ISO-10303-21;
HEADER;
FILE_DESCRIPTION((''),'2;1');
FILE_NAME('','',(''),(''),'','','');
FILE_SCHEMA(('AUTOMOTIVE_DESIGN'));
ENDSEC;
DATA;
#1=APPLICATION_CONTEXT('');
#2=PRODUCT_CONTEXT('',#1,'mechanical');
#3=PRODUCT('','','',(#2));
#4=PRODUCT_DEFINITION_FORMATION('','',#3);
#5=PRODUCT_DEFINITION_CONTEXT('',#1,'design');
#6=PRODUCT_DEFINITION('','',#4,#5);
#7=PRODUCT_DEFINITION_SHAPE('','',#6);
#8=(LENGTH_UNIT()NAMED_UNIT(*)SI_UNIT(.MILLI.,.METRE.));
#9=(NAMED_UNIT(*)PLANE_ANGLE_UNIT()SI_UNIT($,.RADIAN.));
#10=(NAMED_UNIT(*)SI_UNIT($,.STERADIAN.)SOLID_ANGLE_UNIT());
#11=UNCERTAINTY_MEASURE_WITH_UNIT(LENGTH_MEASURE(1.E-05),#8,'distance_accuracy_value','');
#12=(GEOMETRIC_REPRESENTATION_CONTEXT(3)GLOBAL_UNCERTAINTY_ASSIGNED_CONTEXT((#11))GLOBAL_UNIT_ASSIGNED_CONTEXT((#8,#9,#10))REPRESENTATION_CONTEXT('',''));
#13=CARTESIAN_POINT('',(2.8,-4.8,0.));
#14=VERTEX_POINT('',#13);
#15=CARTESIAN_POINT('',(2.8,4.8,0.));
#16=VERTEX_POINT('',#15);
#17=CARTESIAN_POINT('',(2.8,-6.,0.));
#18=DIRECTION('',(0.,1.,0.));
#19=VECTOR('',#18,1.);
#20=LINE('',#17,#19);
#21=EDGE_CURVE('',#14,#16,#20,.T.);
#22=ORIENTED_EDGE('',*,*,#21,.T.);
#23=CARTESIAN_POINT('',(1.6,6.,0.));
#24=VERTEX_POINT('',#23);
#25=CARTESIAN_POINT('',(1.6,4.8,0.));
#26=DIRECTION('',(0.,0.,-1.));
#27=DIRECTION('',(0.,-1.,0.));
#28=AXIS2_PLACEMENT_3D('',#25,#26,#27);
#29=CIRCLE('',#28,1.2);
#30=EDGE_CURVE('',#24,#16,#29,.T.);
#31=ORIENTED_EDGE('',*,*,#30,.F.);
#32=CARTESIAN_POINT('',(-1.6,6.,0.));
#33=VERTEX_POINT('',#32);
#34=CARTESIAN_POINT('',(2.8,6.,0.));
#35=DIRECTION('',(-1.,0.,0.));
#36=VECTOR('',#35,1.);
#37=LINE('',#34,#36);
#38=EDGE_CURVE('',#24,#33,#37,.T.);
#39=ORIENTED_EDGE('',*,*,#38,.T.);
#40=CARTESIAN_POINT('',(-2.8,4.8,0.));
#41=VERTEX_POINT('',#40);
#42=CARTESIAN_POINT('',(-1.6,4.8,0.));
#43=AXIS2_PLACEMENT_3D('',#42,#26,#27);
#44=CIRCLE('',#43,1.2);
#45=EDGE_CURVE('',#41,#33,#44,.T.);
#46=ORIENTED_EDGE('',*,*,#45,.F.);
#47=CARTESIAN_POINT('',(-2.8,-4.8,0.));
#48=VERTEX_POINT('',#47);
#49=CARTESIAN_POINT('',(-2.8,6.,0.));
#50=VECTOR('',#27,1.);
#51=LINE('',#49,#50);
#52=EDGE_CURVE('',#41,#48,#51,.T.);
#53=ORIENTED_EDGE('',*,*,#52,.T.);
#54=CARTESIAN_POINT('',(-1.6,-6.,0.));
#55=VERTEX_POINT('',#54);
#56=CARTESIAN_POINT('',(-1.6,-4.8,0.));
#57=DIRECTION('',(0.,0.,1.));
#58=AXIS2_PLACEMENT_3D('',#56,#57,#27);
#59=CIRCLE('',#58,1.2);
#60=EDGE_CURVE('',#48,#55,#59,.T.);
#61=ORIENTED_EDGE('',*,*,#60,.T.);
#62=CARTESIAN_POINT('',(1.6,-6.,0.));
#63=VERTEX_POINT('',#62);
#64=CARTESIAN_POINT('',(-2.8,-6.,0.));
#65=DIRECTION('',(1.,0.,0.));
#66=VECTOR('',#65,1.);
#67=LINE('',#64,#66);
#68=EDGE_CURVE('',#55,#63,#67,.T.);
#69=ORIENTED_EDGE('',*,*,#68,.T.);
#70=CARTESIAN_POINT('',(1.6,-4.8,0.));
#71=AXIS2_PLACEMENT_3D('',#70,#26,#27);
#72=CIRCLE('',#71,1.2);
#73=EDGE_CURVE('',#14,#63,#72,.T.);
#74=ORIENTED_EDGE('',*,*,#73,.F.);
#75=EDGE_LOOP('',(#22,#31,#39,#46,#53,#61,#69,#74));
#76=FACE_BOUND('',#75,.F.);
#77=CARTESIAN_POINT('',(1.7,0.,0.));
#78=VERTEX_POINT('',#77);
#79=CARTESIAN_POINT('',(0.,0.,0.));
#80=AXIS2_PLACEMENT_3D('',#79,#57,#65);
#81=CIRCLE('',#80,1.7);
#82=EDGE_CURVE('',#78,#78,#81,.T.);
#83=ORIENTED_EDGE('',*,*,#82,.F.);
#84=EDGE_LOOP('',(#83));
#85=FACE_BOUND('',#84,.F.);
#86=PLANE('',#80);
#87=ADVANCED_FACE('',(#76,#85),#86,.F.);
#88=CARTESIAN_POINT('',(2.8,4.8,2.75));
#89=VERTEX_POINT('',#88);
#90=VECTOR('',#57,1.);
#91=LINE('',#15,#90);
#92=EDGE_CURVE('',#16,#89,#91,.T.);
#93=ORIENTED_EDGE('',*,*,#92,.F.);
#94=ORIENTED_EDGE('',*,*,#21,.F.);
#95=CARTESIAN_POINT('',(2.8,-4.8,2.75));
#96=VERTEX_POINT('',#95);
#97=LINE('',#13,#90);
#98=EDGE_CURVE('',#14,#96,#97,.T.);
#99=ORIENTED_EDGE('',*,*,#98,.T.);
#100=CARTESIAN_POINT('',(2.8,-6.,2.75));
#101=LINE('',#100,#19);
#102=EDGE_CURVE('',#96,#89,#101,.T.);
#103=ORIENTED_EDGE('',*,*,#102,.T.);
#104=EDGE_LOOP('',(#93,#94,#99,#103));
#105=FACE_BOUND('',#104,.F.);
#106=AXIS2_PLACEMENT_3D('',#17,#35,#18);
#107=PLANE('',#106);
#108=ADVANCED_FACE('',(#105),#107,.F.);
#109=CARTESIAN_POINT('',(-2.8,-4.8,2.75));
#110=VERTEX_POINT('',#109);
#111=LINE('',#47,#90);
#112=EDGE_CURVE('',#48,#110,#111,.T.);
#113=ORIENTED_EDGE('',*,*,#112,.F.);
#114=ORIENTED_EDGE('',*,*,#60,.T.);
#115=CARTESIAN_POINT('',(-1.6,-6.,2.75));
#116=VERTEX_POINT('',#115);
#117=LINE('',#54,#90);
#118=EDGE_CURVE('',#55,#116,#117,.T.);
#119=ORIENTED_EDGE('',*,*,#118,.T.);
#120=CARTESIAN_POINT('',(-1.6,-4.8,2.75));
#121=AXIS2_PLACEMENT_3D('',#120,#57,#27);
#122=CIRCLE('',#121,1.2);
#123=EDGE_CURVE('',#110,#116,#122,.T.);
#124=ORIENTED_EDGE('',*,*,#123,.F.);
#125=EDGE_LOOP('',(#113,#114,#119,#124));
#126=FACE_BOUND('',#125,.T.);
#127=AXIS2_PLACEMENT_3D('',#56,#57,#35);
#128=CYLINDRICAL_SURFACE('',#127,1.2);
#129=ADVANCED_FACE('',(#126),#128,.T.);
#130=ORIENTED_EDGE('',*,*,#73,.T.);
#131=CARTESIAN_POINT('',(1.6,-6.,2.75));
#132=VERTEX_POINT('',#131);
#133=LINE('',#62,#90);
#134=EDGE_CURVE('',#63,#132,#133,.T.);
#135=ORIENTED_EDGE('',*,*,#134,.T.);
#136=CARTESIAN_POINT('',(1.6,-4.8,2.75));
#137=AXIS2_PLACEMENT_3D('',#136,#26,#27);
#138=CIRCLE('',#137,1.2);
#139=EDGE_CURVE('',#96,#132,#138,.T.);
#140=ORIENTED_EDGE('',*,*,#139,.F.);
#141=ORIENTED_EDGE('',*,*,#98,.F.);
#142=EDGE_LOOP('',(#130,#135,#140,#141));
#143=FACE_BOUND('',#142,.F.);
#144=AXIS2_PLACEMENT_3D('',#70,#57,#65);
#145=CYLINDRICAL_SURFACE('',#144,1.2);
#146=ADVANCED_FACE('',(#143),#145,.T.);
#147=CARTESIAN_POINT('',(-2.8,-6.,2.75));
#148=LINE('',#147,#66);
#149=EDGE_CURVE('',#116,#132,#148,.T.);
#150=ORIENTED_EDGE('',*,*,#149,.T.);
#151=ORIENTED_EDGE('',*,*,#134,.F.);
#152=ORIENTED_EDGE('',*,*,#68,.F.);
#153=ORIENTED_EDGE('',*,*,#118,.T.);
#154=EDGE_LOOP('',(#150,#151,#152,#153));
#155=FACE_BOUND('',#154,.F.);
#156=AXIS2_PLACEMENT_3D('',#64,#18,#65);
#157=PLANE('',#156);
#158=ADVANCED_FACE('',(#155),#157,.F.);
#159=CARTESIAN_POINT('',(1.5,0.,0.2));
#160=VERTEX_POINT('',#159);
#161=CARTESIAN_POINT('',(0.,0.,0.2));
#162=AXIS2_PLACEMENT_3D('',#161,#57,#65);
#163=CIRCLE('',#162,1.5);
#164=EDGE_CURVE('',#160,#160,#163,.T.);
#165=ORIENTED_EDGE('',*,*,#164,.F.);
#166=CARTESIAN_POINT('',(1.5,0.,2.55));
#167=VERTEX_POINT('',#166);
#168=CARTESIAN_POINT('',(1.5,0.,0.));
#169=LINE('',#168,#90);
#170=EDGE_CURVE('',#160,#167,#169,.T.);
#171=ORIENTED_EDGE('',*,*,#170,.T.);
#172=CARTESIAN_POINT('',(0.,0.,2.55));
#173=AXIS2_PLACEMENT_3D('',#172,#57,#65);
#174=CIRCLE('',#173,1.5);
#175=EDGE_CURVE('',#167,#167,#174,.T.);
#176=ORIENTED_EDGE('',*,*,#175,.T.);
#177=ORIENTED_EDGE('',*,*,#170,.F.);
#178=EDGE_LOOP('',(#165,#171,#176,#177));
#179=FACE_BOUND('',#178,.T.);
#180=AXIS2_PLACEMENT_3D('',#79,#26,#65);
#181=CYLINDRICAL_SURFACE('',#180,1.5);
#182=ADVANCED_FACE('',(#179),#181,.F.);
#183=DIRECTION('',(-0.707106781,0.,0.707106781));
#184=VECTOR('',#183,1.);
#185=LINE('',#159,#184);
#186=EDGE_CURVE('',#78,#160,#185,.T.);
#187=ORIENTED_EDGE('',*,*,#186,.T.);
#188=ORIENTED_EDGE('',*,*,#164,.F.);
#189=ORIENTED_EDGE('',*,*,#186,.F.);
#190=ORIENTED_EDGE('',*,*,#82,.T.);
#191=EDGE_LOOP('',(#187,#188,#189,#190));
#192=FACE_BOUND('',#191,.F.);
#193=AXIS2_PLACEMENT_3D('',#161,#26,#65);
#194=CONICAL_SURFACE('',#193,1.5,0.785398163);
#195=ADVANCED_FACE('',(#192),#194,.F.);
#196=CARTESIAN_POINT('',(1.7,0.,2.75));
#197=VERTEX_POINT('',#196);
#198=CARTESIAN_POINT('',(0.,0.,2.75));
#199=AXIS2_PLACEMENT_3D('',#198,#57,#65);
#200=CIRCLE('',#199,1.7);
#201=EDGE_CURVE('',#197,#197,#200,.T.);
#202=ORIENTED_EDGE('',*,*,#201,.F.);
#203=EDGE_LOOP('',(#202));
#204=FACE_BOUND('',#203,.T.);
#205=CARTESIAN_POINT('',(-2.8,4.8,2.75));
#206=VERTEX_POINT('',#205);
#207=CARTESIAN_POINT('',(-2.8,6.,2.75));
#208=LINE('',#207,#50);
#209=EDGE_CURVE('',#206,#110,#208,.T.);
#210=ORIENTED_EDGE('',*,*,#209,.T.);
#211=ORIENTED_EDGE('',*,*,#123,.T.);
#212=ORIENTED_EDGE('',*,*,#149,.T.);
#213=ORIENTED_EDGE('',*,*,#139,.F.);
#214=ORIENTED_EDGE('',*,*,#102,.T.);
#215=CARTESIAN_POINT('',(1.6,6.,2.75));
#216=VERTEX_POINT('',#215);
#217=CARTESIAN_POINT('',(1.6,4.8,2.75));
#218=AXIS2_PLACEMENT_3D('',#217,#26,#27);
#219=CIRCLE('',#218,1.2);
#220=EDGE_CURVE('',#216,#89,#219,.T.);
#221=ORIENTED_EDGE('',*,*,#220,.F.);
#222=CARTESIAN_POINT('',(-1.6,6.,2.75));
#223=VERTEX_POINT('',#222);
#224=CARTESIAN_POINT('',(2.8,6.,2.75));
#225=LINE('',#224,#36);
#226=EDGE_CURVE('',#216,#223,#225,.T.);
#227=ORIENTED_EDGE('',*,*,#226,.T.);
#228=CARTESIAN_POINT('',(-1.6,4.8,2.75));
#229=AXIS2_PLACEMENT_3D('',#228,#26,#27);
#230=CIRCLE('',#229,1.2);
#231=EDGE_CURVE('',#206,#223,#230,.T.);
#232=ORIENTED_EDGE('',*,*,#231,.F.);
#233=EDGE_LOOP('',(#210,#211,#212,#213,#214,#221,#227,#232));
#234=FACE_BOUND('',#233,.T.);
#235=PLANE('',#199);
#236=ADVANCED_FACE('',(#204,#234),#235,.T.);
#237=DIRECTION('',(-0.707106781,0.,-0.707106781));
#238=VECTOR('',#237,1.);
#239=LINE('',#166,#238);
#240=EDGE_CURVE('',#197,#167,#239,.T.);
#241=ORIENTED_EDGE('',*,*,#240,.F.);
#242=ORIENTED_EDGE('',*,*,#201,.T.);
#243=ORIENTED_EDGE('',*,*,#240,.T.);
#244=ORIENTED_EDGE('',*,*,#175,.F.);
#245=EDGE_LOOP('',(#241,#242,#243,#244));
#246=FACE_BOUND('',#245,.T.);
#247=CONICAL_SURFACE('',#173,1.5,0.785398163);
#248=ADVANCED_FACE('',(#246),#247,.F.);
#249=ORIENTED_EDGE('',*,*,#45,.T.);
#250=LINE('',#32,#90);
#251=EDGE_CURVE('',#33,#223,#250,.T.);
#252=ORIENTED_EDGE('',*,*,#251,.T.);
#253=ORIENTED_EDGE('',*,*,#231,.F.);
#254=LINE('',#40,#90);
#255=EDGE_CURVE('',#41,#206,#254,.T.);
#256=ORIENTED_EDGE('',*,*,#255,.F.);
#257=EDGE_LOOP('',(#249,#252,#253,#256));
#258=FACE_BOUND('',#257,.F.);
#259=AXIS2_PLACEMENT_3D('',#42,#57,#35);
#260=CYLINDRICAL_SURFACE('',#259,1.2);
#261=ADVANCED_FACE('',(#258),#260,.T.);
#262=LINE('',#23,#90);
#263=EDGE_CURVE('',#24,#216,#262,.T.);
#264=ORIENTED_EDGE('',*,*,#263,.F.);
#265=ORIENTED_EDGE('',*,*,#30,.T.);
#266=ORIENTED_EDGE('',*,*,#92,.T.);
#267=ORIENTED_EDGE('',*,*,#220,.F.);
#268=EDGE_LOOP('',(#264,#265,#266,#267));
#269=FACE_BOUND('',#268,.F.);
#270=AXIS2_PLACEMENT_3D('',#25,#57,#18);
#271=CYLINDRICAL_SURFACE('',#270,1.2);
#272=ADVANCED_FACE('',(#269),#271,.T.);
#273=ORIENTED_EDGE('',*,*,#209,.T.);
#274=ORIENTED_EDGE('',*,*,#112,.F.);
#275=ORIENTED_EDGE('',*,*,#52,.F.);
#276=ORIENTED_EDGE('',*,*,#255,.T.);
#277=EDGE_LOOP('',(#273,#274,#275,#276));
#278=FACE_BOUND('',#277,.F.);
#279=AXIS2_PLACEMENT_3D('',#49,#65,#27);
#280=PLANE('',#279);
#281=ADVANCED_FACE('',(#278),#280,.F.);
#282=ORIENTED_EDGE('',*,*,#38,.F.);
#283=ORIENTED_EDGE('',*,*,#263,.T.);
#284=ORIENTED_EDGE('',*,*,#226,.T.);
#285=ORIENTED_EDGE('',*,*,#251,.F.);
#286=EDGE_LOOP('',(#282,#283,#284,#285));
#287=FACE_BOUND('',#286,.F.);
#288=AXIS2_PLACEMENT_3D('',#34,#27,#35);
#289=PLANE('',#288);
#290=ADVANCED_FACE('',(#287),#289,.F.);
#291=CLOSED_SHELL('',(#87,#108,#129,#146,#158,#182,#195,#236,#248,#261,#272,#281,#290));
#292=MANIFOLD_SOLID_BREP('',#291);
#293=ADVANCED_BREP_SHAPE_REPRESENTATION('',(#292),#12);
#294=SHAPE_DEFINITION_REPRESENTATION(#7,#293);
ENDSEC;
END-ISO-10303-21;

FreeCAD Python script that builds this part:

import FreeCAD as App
import Part
import Sketcher
from FreeCAD import Vector


def edges_at(feature, points):
    """Names of the edges that pass closest to the given points."""
    edges = feature.Shape.Edges
    near = lambda p: min(range(len(edges)), key=lambda i: edges[i].distToShape(Part.Vertex(*p))[0])
    return sorted({f"Edge{near(p) + 1}" for p in points})


def add_polygon(sketch, points):
    """Adds a closed chain of lines whose ends are joined by coincident constraints."""
    first, n = sketch.GeometryCount, len(points)
    for a, b in zip(points, points[1:] + points[:1]):
        sketch.addGeometry(Part.LineSegment(App.Vector(*a, 0), App.Vector(*b, 0)), False)
    for i in range(n):
        sketch.addConstraint(Sketcher.Constraint("Coincident", first + i, 2, first + (i + 1) % n, 1))

doc = App.newDocument("Part")
body = doc.addObject("PartDesign::Body", "Body")

sketch1 = body.newObject("Sketcher::SketchObject", "Sketch")
sketch1.AttachmentSupport = (doc.getObject("XY_Plane"), [""])
sketch1.MapMode = "FlatFace"
add_polygon(sketch1, [(-2.8, 6), (-2.8, -6), (2.8, -6), (2.8, 6)])
sketch1.addGeometry(Part.Circle(Vector(0, 0, 0), Vector(0, 0, 1), 1.5), False)
sketch1.addConstraint([
    Sketcher.Constraint("Vertical", 0),
    Sketcher.Constraint("Horizontal", 1),
    Sketcher.Constraint("Vertical", 2),
    Sketcher.Constraint("Horizontal", 3),
    Sketcher.Constraint("Coincident", 4, 3, -1, 1),
    Sketcher.Constraint("Symmetric", 0, 2, 2, 2, -1, 1),
    Sketcher.Constraint("Diameter", 4, 3.0),
    Sketcher.Constraint("DistanceY", 0, 2, 0, 1, 12.0),
    Sketcher.Constraint("DistanceX", 1, 1, 1, 2, 5.6),
])
pad1 = body.newObject("PartDesign::Pad", "Pad")
pad1.Profile = sketch1
pad1.Length = 2.75
doc.recompute()

fillet = body.newObject("PartDesign::Fillet", "Fillet")
fillet.Base = (pad1, edges_at(pad1, [
    (-2.8, 6, 1.375),
    (2.8, 6, 1.375),
    (2.8, -6, 1.375),
    (-2.8, -6, 1.375),
]))
fillet.Radius = 1.2
doc.recompute()

chamfer = body.newObject("PartDesign::Chamfer", "Chamfer")
chamfer.Base = (fillet, edges_at(fillet, [(-1.5, 0, 2.75), (-1.5, 0, 0)]))
chamfer.Size = 0.2

doc.recompute()
